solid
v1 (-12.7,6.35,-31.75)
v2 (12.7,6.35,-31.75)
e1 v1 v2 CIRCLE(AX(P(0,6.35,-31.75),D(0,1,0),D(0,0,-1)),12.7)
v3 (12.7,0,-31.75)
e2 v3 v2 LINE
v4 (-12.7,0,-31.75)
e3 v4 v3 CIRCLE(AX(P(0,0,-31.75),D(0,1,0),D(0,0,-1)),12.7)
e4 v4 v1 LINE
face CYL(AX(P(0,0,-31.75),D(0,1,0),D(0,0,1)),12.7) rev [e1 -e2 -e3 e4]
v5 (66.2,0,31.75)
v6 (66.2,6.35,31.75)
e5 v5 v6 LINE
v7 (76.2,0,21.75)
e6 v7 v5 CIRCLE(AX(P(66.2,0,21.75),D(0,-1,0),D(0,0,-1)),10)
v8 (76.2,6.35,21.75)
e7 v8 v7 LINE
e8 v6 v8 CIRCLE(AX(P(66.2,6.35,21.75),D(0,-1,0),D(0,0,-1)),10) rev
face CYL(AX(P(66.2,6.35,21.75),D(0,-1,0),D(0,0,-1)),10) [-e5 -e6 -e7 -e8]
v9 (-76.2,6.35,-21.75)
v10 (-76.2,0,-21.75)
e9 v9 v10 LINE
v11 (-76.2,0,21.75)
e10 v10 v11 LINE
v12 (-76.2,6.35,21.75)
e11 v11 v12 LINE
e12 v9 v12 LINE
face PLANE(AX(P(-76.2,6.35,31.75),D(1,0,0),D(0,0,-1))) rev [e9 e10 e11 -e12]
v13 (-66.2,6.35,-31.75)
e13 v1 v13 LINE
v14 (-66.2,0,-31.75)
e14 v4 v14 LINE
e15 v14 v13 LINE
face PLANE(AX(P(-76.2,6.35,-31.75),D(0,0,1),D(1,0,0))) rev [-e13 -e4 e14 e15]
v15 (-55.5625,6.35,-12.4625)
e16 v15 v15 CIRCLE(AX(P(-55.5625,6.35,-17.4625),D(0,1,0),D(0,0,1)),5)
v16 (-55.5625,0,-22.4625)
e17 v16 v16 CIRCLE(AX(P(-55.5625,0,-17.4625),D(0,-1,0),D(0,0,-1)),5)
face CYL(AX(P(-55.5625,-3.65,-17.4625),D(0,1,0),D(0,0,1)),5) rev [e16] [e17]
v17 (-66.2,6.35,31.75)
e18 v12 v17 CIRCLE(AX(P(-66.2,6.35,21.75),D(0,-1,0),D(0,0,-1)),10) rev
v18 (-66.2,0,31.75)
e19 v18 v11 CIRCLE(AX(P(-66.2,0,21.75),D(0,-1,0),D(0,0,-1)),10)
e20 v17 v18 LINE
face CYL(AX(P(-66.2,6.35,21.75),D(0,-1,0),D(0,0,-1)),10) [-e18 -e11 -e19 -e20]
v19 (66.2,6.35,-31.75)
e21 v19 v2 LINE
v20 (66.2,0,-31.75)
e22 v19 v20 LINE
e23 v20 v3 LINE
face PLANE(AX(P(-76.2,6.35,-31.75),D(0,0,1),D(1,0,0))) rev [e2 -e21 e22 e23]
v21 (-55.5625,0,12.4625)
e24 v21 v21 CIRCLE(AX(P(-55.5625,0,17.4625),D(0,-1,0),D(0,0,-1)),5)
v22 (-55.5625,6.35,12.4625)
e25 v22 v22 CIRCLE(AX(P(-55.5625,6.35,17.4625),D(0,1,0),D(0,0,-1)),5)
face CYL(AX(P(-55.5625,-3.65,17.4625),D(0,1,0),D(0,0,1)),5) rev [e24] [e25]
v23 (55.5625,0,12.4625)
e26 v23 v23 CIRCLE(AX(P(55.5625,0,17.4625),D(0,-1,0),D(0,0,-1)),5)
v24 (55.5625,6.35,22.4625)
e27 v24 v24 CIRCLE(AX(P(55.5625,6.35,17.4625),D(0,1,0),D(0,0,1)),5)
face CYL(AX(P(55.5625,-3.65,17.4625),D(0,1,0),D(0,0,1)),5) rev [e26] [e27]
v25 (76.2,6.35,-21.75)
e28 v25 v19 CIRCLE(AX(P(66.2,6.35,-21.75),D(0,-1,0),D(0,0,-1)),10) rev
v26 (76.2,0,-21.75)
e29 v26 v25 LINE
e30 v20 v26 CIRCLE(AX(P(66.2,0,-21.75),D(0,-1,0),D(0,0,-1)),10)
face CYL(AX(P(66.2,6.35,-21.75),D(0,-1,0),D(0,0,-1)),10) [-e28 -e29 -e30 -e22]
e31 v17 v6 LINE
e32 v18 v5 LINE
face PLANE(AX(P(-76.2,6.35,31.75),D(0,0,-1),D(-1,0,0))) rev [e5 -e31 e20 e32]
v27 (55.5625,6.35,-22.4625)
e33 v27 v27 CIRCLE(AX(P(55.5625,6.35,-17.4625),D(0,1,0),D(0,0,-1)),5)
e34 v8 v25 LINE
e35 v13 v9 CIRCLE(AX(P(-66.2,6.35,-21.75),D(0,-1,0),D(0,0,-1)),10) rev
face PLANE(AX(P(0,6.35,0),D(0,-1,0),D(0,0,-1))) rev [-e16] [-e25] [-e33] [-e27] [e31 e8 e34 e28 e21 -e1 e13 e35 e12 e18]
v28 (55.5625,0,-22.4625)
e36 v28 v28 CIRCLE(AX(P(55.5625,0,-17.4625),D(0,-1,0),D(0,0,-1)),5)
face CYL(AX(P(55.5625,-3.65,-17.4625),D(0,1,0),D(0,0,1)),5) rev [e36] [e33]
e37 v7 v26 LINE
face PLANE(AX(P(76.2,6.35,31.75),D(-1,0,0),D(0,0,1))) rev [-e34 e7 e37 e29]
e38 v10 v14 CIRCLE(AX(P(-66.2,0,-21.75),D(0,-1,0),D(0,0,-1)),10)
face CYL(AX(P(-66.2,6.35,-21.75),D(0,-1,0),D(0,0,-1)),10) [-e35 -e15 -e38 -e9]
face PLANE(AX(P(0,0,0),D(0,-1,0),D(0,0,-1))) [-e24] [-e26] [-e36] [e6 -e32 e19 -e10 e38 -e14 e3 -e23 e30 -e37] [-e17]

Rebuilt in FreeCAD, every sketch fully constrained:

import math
import FreeCAD as App
import Part
import Sketcher
from FreeCAD import Vector
Q = App.Units.Quantity


def edges_at(feature, points):
    """Names of the edges that pass closest to the given points."""
    edges = feature.Shape.Edges
    near = lambda p: min(range(len(edges)), key=lambda i: edges[i].distToShape(Part.Vertex(*p))[0])
    return sorted({f"Edge{near(p) + 1}" for p in points})

doc = App.newDocument("Part")
params = doc.addObject("Spreadsheet::Sheet", "Params")
for row, (alias, value) in enumerate([
    ("sketch1_width", "6 in"),
    ("sketch1_height", "2.5 in"),
    ("pad1_length", "0.25 in"),
    ("fillet_radius", "10 mm"),
    ("sketch2_radius", "0.5 in"),
    ("pocket1_length", "0.25 in"),
    ("pocket2_length", "10 mm"),
], start=1):
    params.set(f"A{row}", alias)
    params.set(f"B{row}", "=" + value)
    params.setAlias(f"B{row}", alias)

body = doc.addObject("PartDesign::Body", "Body")

sketch1 = doc.addObject("Sketcher::SketchObject", "Sketch")
body.addObject(sketch1)
sketch1.AttachmentSupport = (doc.XZ_Plane, [""])
sketch1.MapMode = "FlatFace"
sketch1.addGeometry([
    Part.LineSegment(Vector(-76, -32, 0), Vector(-76, 32, 0)),
    Part.LineSegment(Vector(-76, 32, 0), Vector(76, 32, 0)),
    Part.LineSegment(Vector(76, 32, 0), Vector(76, -32, 0)),
    Part.LineSegment(Vector(76, -32, 0), Vector(-76, -32, 0)),
], False)
sketch1.addConstraint([
    Sketcher.Constraint("Coincident", 0, 2, 1, 1),
    Sketcher.Constraint("Coincident", 1, 2, 2, 1),
    Sketcher.Constraint("Coincident", 2, 2, 3, 1),
    Sketcher.Constraint("Coincident", 3, 2, 0, 1),
    Sketcher.Constraint("Vertical", 0),
    Sketcher.Constraint("Horizontal", 1),
    Sketcher.Constraint("Vertical", 2),
    Sketcher.Constraint("Horizontal", 3),
    Sketcher.Constraint("Symmetric", 0, 2, 2, 2, -1, 1),
    Sketcher.Constraint("DistanceX", 1, 1, 1, 2, Q("6 in")),
    Sketcher.Constraint("DistanceY", 0, 1, 0, 2, Q("2.5 in")),
])
sketch1.setExpression("Constraints[9]", "Params.sketch1_width")
sketch1.setExpression("Constraints[10]", "Params.sketch1_height")
pad1 = doc.addObject("PartDesign::Pad", "Pad")
body.addObject(pad1)
pad1.Profile = sketch1
pad1.setExpression("Length", "Params.pad1_length")
pad1.Reversed = True
doc.recompute()

fillet = doc.addObject("PartDesign::Fillet", "Fillet")
body.addObject(fillet)
fillet.Base = (pad1, edges_at(pad1, [
    (76.2, 3.175, 31.75),
    (-76.2, 3.175, 31.75),
    (-76.2, 3.175, -31.75),
    (76.2, 3.175, -31.75),
]))
fillet.setExpression("Radius", "Params.fillet_radius")

sketch2 = doc.addObject("Sketcher::SketchObject", "Sketch001")
body.addObject(sketch2)
sketch2.AttachmentSupport = (doc.XZ_Plane, [""])
sketch2.MapMode = "FlatFace"
sketch2.AttachmentOffset = App.Placement(Vector(0, 0, -0.25 * 25.4), App.Rotation())
sketch2.addGeometry([
    Part.LineSegment(Vector(13, -32, 0), Vector(-13, -32, 0)),
    Part.ArcOfCircle(Part.Circle(Vector(0, -32, 0), Vector(0, 0, 1), 13), math.radians(0), math.radians(180)),
], False)
sketch2.addConstraint([
    Sketcher.Constraint("Coincident", 0, 1, 1, 1),
    Sketcher.Constraint("Coincident", 1, 2, 0, 2),
    Sketcher.Constraint("Horizontal", 0),
    Sketcher.Constraint("PointOnObject", 1, 3, -2),
    Sketcher.Constraint("Horizontal", 1, 3, 0, 1),
    Sketcher.Constraint("Radius", 1, Q("0.5 in")),
    Sketcher.Constraint("DistanceY", 1, 3, -1, 1, Q("1.25 in")),
])
sketch2.setExpression("Constraints[5]", "Params.sketch2_radius")
pocket1 = doc.addObject("PartDesign::Pocket", "Pocket")
body.addObject(pocket1)
pocket1.Profile = sketch2
pocket1.setExpression("Length", "Params.pocket1_length")
pocket1.Reversed = True

sketch3 = doc.addObject("Sketcher::SketchObject", "Sketch002")
body.addObject(sketch3)
sketch3.AttachmentSupport = (doc.XZ_Plane, [""])
sketch3.MapMode = "FlatFace"
sketch3.AttachmentOffset = App.Placement(Vector(0, 0, -0.25 * 25.4), App.Rotation())
sketch3.addGeometry([
    Part.Circle(Vector(-56, -17, 0), Vector(0, 0, 1), 5),
    Part.Circle(Vector(56, -17, 0), Vector(0, 0, 1), 5),
    Part.Circle(Vector(56, 17, 0), Vector(0, 0, 1), 5),
    Part.Circle(Vector(-56, 17, 0), Vector(0, 0, 1), 5),
], False)
sketch3.addConstraint([
    Sketcher.Constraint("Equal", 0, 1),
    Sketcher.Constraint("Equal", 1, 2),
    Sketcher.Constraint("Equal", 2, 3),
    Sketcher.Constraint("Symmetric", 0, 3, 2, 3, -1, 1),
    Sketcher.Constraint("Symmetric", 1, 3, 3, 3, -1, 1),
    Sketcher.Constraint("Symmetric", 0, 3, 1, 3, -2),
    Sketcher.Constraint("Diameter", 0, Q("10 mm")),
    Sketcher.Constraint("DistanceX", 0, 3, -1, 1, Q("2.1875 in")),
    Sketcher.Constraint("DistanceY", 0, 3, -1, 1, Q("0.6875 in")),
])
pocket2 = doc.addObject("PartDesign::Pocket", "Pocket001")
body.addObject(pocket2)
pocket2.Profile = sketch3
pocket2.setExpression("Length", "Params.pocket2_length")
pocket2.Reversed = True

doc.recompute()
